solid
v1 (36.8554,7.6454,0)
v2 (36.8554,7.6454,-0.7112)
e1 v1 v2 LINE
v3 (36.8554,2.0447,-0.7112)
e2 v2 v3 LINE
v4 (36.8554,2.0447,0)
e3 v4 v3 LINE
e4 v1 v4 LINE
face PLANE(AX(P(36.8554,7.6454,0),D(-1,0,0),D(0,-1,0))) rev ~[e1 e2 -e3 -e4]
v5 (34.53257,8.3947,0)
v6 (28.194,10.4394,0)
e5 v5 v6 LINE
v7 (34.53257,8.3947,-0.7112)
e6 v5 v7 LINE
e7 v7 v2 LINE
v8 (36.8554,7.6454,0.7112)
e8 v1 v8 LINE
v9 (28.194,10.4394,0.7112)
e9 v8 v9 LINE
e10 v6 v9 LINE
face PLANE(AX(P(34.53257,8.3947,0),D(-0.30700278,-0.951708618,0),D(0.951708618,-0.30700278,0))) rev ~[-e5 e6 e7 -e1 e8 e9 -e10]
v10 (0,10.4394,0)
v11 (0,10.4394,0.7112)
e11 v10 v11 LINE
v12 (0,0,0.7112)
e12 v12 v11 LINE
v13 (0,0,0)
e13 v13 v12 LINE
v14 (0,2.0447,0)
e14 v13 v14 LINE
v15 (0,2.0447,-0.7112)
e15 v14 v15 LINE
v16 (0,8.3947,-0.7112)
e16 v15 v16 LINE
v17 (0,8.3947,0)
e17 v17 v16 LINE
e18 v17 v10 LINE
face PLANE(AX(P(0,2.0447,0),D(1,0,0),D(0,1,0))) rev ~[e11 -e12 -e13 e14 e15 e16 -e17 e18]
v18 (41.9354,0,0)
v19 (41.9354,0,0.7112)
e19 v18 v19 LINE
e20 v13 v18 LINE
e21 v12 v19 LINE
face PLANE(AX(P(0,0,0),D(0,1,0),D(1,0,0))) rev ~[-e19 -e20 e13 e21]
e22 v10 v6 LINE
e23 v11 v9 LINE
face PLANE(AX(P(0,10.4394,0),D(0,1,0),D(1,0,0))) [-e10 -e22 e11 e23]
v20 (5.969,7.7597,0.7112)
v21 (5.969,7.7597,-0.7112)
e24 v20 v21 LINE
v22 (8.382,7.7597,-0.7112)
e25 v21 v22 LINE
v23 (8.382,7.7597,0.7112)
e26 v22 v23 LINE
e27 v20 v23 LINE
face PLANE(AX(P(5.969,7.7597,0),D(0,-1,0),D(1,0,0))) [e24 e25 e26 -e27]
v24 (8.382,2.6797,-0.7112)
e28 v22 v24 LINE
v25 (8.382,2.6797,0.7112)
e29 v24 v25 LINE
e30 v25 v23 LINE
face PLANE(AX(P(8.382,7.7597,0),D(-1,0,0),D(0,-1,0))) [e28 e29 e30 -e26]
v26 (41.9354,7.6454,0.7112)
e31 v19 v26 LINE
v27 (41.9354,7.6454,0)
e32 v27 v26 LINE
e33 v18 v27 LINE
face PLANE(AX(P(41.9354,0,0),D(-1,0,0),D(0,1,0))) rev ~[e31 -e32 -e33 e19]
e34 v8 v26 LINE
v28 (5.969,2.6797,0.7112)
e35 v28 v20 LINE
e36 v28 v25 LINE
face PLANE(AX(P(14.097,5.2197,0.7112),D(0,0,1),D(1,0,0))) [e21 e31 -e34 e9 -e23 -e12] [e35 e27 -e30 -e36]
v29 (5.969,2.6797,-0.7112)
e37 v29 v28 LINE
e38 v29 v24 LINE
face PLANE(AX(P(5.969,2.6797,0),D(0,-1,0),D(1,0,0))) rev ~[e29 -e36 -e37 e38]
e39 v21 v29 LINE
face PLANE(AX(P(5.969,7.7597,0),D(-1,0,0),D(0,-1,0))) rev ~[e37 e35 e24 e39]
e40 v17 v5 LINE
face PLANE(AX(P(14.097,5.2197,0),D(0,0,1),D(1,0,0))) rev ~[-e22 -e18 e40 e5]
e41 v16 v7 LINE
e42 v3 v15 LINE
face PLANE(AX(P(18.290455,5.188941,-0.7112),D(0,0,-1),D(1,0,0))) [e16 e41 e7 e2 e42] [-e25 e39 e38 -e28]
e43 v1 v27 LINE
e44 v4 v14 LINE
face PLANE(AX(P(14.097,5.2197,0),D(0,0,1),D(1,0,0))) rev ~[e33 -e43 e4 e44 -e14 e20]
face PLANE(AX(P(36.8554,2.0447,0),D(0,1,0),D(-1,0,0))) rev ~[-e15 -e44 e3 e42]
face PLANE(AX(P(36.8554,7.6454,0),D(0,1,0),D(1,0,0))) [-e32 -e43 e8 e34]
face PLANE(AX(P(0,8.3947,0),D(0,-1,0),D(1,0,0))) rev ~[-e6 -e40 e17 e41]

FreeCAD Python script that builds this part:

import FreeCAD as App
import Part
import Sketcher

V = App.Vector
Q = App.Units.Quantity


def add_polygon(sketch, points):
    """Adds a closed chain of lines whose ends are joined by coincident constraints."""
    first, n = sketch.GeometryCount, len(points)
    for a, b in zip(points, points[1:] + points[:1]):
        sketch.addGeometry(Part.LineSegment(App.Vector(*a, 0), App.Vector(*b, 0)), False)
    for i in range(n):
        sketch.addConstraint(Sketcher.Constraint("Coincident", first + i, 2, first + (i + 1) % n, 1))

doc = App.newDocument("Part")
params = doc.addObject("Spreadsheet::Sheet", "Params")
for row, (alias, value) in enumerate([
    ("sketch1_width", "0.2 in"),
    ("sketch1_width2", "1.11 in"),
    ("sketch1_width3", "1.651 in"),
    ("sketch1_width4", "0.095 in"),
    ("sketch1_height", "0.411 in"),
    ("pad1_length", "0.028 in"),
    ("sketch2_height", "0.2 in"),
    ("sketch2_height2", "0.25 in"),
    ("sketch2_width", "1.451 in"),
    ("sketch2_width2", "0.095 in"),
    ("pad2_length", "0.028 in"),
], start=1):
    params.set(f"A{row}", alias)
    params.set(f"B{row}", "=" + value)
    params.setAlias(f"B{row}", alias)

body = doc.addObject("PartDesign::Body", "Body")

# Sketch on XY plane
sketch1 = body.newObject("Sketcher::SketchObject", "Sketch")
sketch1.AttachmentSupport = (doc.getObject("XY_Plane"), [""])
sketch1.MapMode = "FlatFace"
add_polygon(sketch1, [(0, 10.4), (0, 0), (41.9, 0), (41.9, 7.6), (36.9, 7.6), (28.2, 10.4)])  # lines 0-5
add_polygon(sketch1, [(8.4, 2.7), (6, 2.7), (6, 7.8), (8.4, 7.8)])  # lines 6-9
sketch1.addConstraint([
    Sketcher.Constraint("Vertical", 0),
    Sketcher.Constraint("Horizontal", 1),
    Sketcher.Constraint("Vertical", 2),
    Sketcher.Constraint("Horizontal", 3),
    Sketcher.Constraint("Horizontal", 5),
    Sketcher.Constraint("Horizontal", 6),
    Sketcher.Constraint("Vertical", 7),
    Sketcher.Constraint("Horizontal", 8),
    Sketcher.Constraint("Vertical", 9),
    Sketcher.Constraint("Coincident", 0, 2, -1, 1),
    Sketcher.Constraint("Equal", 3, 7),
    Sketcher.Constraint("DistanceX", 3, 2, 3, 1, Q("0.2 in")),
    Sketcher.Constraint("DistanceX", 5, 2, 5, 1, Q("1.11 in")),
    Sketcher.Constraint("DistanceX", 1, 1, 1, 2, Q("1.651 in")),
    Sketcher.Constraint("DistanceX", 6, 2, 6, 1, Q("0.095 in")),
    Sketcher.Constraint("DistanceY", 0, 2, 0, 1, Q("0.411 in")),
    Sketcher.Constraint("DistanceY", 2, 1, 2, 2, Q("0.301 in")),
    Sketcher.Constraint("DistanceX", -1, 1, 8, 2, Q("0.33 in")),
    Sketcher.Constraint("DistanceY", -1, 1, 6, 2, Q("0.1055 in")),
])
sketch1.setExpression("Constraints[21]", "Params.sketch1_width")
sketch1.setExpression("Constraints[22]", "Params.sketch1_width2")
sketch1.setExpression("Constraints[23]", "Params.sketch1_width3")
sketch1.setExpression("Constraints[24]", "Params.sketch1_width4")
sketch1.setExpression("Constraints[25]", "Params.sketch1_height")
pad1 = body.newObject("PartDesign::Pad", "Pad")
pad1.Profile = sketch1
pad1.setExpression("Length", "Params.pad1_length")

# Sketch on XY plane
sketch2 = body.newObject("Sketcher::SketchObject", "Sketch001")
sketch2.AttachmentSupport = (doc.getObject("XY_Plane"), [""])
sketch2.MapMode = "FlatFace"
add_polygon(sketch2, [(36.9, 2), (0, 2), (0, 8.4), (34.5, 8.4), (36.9, 7.6)])  # lines 0-4
add_polygon(sketch2, [(8.4, 7.8), (6, 7.8), (6, 2.7), (8.4, 2.7)])  # lines 5-8
sketch2.addConstraint([
    Sketcher.Constraint("Horizontal", 0),
    Sketcher.Constraint("Vertical", 1),
    Sketcher.Constraint("Horizontal", 2),
    Sketcher.Constraint("Vertical", 4),
    Sketcher.Constraint("Horizontal", 5),
    Sketcher.Constraint("Vertical", 6),
    Sketcher.Constraint("Horizontal", 7),
    Sketcher.Constraint("Vertical", 8),
    Sketcher.Constraint("PointOnObject", 0, 2, -2),
    Sketcher.Constraint("DistanceY", 6, 2, 6, 1, Q("0.2 in")),
    Sketcher.Constraint("DistanceY", 1, 1, 1, 2, Q("0.25 in")),
    Sketcher.Constraint("DistanceX", 0, 2, 0, 1, Q("1.451 in")),
    Sketcher.Constraint("DistanceX", 5, 2, 5, 1, Q("0.095 in")),
    Sketcher.Constraint("DistanceX", -1, 1, 7, 2, Q("0.33 in")),
    Sketcher.Constraint("DistanceY", 4, 2, 4, 1, Q("0.2205 in")),
    Sketcher.Constraint("DistanceY", -1, 1, 3, 2, Q("0.301 in")),
    Sketcher.Constraint("DistanceY", 5, 2, 1, 2, Q("0.025 in")),
    Sketcher.Constraint("DistanceX", 2, 1, 2, 2, Q("34.53257 mm")),
])
sketch2.setExpression("Constraints[18]", "Params.sketch2_height")
sketch2.setExpression("Constraints[19]", "Params.sketch2_height2")
sketch2.setExpression("Constraints[20]", "Params.sketch2_width")
sketch2.setExpression("Constraints[21]", "Params.sketch2_width2")
pad2 = body.newObject("PartDesign::Pad", "Pad001")
pad2.Profile = sketch2
pad2.setExpression("Length", "Params.pad2_length")
pad2.Reversed = True

doc.recompute()
